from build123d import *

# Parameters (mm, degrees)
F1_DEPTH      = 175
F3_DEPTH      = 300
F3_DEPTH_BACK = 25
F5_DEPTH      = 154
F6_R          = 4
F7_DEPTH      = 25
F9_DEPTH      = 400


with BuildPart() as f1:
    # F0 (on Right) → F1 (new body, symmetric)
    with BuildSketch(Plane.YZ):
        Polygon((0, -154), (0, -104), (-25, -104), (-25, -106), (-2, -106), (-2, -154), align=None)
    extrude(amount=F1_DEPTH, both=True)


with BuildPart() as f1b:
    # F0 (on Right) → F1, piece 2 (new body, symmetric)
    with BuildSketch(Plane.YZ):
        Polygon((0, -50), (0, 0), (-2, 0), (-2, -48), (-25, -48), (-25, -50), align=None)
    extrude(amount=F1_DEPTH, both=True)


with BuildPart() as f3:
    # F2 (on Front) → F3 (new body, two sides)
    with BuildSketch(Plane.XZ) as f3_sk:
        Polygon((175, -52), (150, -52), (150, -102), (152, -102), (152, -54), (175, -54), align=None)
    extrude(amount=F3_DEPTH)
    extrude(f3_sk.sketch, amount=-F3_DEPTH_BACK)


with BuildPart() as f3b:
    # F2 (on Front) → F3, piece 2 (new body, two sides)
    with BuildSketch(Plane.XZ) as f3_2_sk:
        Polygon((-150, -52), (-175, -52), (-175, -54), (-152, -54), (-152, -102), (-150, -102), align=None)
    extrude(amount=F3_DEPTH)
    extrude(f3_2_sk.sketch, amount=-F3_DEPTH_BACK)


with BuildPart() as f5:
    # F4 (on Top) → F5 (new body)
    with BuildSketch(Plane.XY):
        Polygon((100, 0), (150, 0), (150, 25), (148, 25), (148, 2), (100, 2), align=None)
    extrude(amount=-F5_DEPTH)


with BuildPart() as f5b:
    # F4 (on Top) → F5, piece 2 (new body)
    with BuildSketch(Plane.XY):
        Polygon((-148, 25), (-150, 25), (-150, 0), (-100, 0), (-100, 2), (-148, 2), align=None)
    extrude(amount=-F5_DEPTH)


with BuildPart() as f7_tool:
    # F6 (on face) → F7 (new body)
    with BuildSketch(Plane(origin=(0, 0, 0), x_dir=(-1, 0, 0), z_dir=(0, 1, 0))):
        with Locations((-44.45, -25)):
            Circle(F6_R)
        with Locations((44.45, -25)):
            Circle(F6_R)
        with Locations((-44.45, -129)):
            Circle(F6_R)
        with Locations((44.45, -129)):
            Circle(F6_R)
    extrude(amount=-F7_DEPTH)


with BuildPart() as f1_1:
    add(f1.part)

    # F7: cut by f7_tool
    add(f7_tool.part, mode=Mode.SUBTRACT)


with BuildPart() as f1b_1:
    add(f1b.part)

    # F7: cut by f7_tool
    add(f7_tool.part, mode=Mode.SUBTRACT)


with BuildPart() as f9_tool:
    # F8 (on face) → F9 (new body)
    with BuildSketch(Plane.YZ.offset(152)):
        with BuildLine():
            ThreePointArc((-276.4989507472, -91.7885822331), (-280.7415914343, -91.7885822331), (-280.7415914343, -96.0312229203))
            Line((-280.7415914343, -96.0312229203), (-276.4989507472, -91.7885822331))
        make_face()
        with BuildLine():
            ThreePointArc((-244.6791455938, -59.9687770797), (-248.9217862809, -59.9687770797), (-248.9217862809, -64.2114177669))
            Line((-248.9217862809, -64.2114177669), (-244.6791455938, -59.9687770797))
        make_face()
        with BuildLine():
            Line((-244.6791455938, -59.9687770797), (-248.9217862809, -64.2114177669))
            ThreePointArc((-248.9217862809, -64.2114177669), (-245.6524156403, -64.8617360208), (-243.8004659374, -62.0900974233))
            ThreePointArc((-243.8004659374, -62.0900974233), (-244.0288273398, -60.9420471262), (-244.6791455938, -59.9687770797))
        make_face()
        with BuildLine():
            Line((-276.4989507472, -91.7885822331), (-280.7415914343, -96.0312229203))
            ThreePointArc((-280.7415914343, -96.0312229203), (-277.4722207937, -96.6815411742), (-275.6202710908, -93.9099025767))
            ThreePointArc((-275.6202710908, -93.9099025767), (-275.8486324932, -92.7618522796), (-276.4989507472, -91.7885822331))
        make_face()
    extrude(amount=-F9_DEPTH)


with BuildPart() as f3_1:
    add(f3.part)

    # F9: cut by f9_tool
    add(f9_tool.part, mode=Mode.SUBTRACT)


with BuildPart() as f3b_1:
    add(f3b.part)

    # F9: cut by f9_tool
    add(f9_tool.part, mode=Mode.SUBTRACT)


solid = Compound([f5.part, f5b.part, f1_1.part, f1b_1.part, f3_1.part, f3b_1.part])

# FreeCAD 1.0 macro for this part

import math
import FreeCAD as App
import Part
import Sketcher

doc = App.newDocument("Part")
body = doc.addObject("PartDesign::Body", "Body")

# Sketch on YZ plane
sketch1 = body.newObject("Sketcher::SketchObject", "Sketch")
sketch1.AttachmentSupport = (doc.getObject("YZ_Plane"), [""])
sketch1.MapMode = "FlatFace"
sketch1.addGeometry(Part.LineSegment(App.Vector(0, -154, 0), App.Vector(0, -104, 0)), False)
sketch1.addGeometry(Part.LineSegment(App.Vector(0, -104, 0), App.Vector(-25, -104, 0)), False)
sketch1.addGeometry(Part.LineSegment(App.Vector(-25, -104, 0), App.Vector(-25, -106, 0)), False)
sketch1.addGeometry(Part.LineSegment(App.Vector(-25, -106, 0), App.Vector(-2, -106, 0)), False)
sketch1.addGeometry(Part.LineSegment(App.Vector(-2, -106, 0), App.Vector(-2, -154, 0)), False)
sketch1.addGeometry(Part.LineSegment(App.Vector(-2, -154, 0), App.Vector(0, -154, 0)), False)
sketch1.addConstraint(Sketcher.Constraint("Coincident", 0, 2, 1, 1))
sketch1.addConstraint(Sketcher.Constraint("Coincident", 1, 2, 2, 1))
sketch1.addConstraint(Sketcher.Constraint("Coincident", 2, 2, 3, 1))
sketch1.addConstraint(Sketcher.Constraint("Coincident", 3, 2, 4, 1))
sketch1.addConstraint(Sketcher.Constraint("Coincident", 4, 2, 5, 1))
sketch1.addConstraint(Sketcher.Constraint("Coincident", 5, 2, 0, 1))
sketch1.addConstraint(Sketcher.Constraint("Vertical", 0))
sketch1.addConstraint(Sketcher.Constraint("Horizontal", 1))
sketch1.addConstraint(Sketcher.Constraint("Vertical", 2))
sketch1.addConstraint(Sketcher.Constraint("Horizontal", 3))
sketch1.addConstraint(Sketcher.Constraint("Vertical", 4))
sketch1.addConstraint(Sketcher.Constraint("Horizontal", 5))
sketch1.addConstraint(Sketcher.Constraint("PointOnObject", 0, 2, -2))
sketch1.addConstraint(Sketcher.Constraint("Equal", 5, 2))
sketch1.addConstraint(Sketcher.Constraint("DistanceX", 1, 2, 1, 1, 25.0))
sketch1.addConstraint(Sketcher.Constraint("DistanceX", 3, 1, 3, 2, 23.0))
sketch1.addConstraint(Sketcher.Constraint("DistanceY", 0, 1, 0, 2, 50.0))
sketch1.addConstraint(Sketcher.Constraint("DistanceY", 0, 2, -1, 1, 104.0))
pad1 = body.newObject("PartDesign::Pad", "Pad")
pad1.Profile = sketch1
pad1.Length = 350
pad1.Midplane = True
body2 = doc.addObject("PartDesign::Body", "Body001")

# Sketch on YZ plane
sketch2 = body2.newObject("Sketcher::SketchObject", "Sketch001")
sketch2.AttachmentSupport = (doc.getObject("YZ_Plane001"), [""])
sketch2.MapMode = "FlatFace"
sketch2.addGeometry(Part.LineSegment(App.Vector(0, -50, 0), App.Vector(0, 0, 0)), False)
sketch2.addGeometry(Part.LineSegment(App.Vector(0, 0, 0), App.Vector(-2, 0, 0)), False)
sketch2.addGeometry(Part.LineSegment(App.Vector(-2, 0, 0), App.Vector(-2, -48, 0)), False)
sketch2.addGeometry(Part.LineSegment(App.Vector(-2, -48, 0), App.Vector(-25, -48, 0)), False)
sketch2.addGeometry(Part.LineSegment(App.Vector(-25, -48, 0), App.Vector(-25, -50, 0)), False)
sketch2.addGeometry(Part.LineSegment(App.Vector(-25, -50, 0), App.Vector(0, -50, 0)), False)
sketch2.addConstraint(Sketcher.Constraint("Coincident", 0, 2, 1, 1))
sketch2.addConstraint(Sketcher.Constraint("Coincident", 1, 2, 2, 1))
sketch2.addConstraint(Sketcher.Constraint("Coincident", 2, 2, 3, 1))
sketch2.addConstraint(Sketcher.Constraint("Coincident", 3, 2, 4, 1))
sketch2.addConstraint(Sketcher.Constraint("Coincident", 4, 2, 5, 1))
sketch2.addConstraint(Sketcher.Constraint("Coincident", 5, 2, 0, 1))
sketch2.addConstraint(Sketcher.Constraint("Vertical", 0))
sketch2.addConstraint(Sketcher.Constraint("Horizontal", 1))
sketch2.addConstraint(Sketcher.Constraint("Vertical", 2))
sketch2.addConstraint(Sketcher.Constraint("Horizontal", 3))
sketch2.addConstraint(Sketcher.Constraint("Vertical", 4))
sketch2.addConstraint(Sketcher.Constraint("Horizontal", 5))
sketch2.addConstraint(Sketcher.Constraint("Coincident", 0, 2, -1, 1))
sketch2.addConstraint(Sketcher.Constraint("Equal", 1, 4))
sketch2.addConstraint(Sketcher.Constraint("DistanceX", 1, 2, 1, 1, 2.0))
sketch2.addConstraint(Sketcher.Constraint("DistanceX", 3, 2, 3, 1, 23.0))
sketch2.addConstraint(Sketcher.Constraint("DistanceY", 0, 1, 0, 2, 50.0))
pad2 = body2.newObject("PartDesign::Pad", "Pad001")
pad2.Profile = sketch2
pad2.Length = 350
pad2.Midplane = True
body3 = doc.addObject("PartDesign::Body", "Body002")

# Sketch on XZ plane
sketch3 = body3.newObject("Sketcher::SketchObject", "Sketch002")
sketch3.AttachmentSupport = (doc.getObject("XZ_Plane002"), [""])
sketch3.MapMode = "FlatFace"
sketch3.addGeometry(Part.LineSegment(App.Vector(175, -52, 0), App.Vector(150, -52, 0)), False)
sketch3.addGeometry(Part.LineSegment(App.Vector(150, -52, 0), App.Vector(150, -102, 0)), False)
sketch3.addGeometry(Part.LineSegment(App.Vector(150, -102, 0), App.Vector(152, -102, 0)), False)
sketch3.addGeometry(Part.LineSegment(App.Vector(152, -102, 0), App.Vector(152, -54, 0)), False)
sketch3.addGeometry(Part.LineSegment(App.Vector(152, -54, 0), App.Vector(175, -54, 0)), False)
sketch3.addGeometry(Part.LineSegment(App.Vector(175, -54, 0), App.Vector(175, -52, 0)), False)
sketch3.addConstraint(Sketcher.Constraint("Coincident", 0, 2, 1, 1))
sketch3.addConstraint(Sketcher.Constraint("Coincident", 1, 2, 2, 1))
sketch3.addConstraint(Sketcher.Constraint("Coincident", 2, 2, 3, 1))
sketch3.addConstraint(Sketcher.Constraint("Coincident", 3, 2, 4, 1))
sketch3.addConstraint(Sketcher.Constraint("Coincident", 4, 2, 5, 1))
sketch3.addConstraint(Sketcher.Constraint("Coincident", 5, 2, 0, 1))
sketch3.addConstraint(Sketcher.Constraint("Horizontal", 0))
sketch3.addConstraint(Sketcher.Constraint("Vertical", 1))
sketch3.addConstraint(Sketcher.Constraint("Horizontal", 2))
sketch3.addConstraint(Sketcher.Constraint("Vertical", 3))
sketch3.addConstraint(Sketcher.Constraint("Horizontal", 4))
sketch3.addConstraint(Sketcher.Constraint("Vertical", 5))
sketch3.addConstraint(Sketcher.Constraint("Equal", 2, 5))
sketch3.addConstraint(Sketcher.Constraint("DistanceX", 0, 2, 0, 1, 25.0))
sketch3.addConstraint(Sketcher.Constraint("DistanceX", 2, 1, 2, 2, 2.0))
sketch3.addConstraint(Sketcher.Constraint("DistanceY", 1, 2, 1, 1, 50.0))
sketch3.addConstraint(Sketcher.Constraint("DistanceX", -1, 1, 0, 2, 150.0))
sketch3.addConstraint(Sketcher.Constraint("DistanceY", 0, 2, -1, 1, 52.0))
pad3 = body3.newObject("PartDesign::Pad", "Pad002")
pad3.Profile = sketch3
pad3.Type = "TwoLengths"
pad3.Length = 300
pad3.Length2 = 25
body4 = doc.addObject("PartDesign::Body", "Body003")

# Sketch on XZ plane
sketch4 = body4.newObject("Sketcher::SketchObject", "Sketch003")
sketch4.AttachmentSupport = (doc.getObject("XZ_Plane003"), [""])
sketch4.MapMode = "FlatFace"
sketch4.addGeometry(Part.LineSegment(App.Vector(-150, -52, 0), App.Vector(-175, -52, 0)), False)
sketch4.addGeometry(Part.LineSegment(App.Vector(-175, -52, 0), App.Vector(-175, -54, 0)), False)
sketch4.addGeometry(Part.LineSegment(App.Vector(-175, -54, 0), App.Vector(-152, -54, 0)), False)
sketch4.addGeometry(Part.LineSegment(App.Vector(-152, -54, 0), App.Vector(-152, -102, 0)), False)
sketch4.addGeometry(Part.LineSegment(App.Vector(-152, -102, 0), App.Vector(-150, -102, 0)), False)
sketch4.addGeometry(Part.LineSegment(App.Vector(-150, -102, 0), App.Vector(-150, -52, 0)), False)
sketch4.addConstraint(Sketcher.Constraint("Coincident", 0, 2, 1, 1))
sketch4.addConstraint(Sketcher.Constraint("Coincident", 1, 2, 2, 1))
sketch4.addConstraint(Sketcher.Constraint("Coincident", 2, 2, 3, 1))
sketch4.addConstraint(Sketcher.Constraint("Coincident", 3, 2, 4, 1))
sketch4.addConstraint(Sketcher.Constraint("Coincident", 4, 2, 5, 1))
sketch4.addConstraint(Sketcher.Constraint("Coincident", 5, 2, 0, 1))
sketch4.addConstraint(Sketcher.Constraint("Horizontal", 0))
sketch4.addConstraint(Sketcher.Constraint("Vertical", 1))
sketch4.addConstraint(Sketcher.Constraint("Horizontal", 2))
sketch4.addConstraint(Sketcher.Constraint("Vertical", 3))
sketch4.addConstraint(Sketcher.Constraint("Horizontal", 4))
sketch4.addConstraint(Sketcher.Constraint("Vertical", 5))
sketch4.addConstraint(Sketcher.Constraint("Equal", 4, 1))
sketch4.addConstraint(Sketcher.Constraint("DistanceX", 0, 2, 0, 1, 25.0))
sketch4.addConstraint(Sketcher.Constraint("DistanceX", 2, 1, 2, 2, 23.0))
sketch4.addConstraint(Sketcher.Constraint("DistanceY", 3, 2, 3, 1, 48.0))
sketch4.addConstraint(Sketcher.Constraint("DistanceX", 0, 2, -1, 1, 175.0))
sketch4.addConstraint(Sketcher.Constraint("DistanceY", 0, 2, -1, 1, 52.0))
pad4 = body4.newObject("PartDesign::Pad", "Pad003")
pad4.Profile = sketch4
pad4.Type = "TwoLengths"
pad4.Length = 300
pad4.Length2 = 25
body5 = doc.addObject("PartDesign::Body", "Body004")

# Sketch on XY plane
sketch5 = body5.newObject("Sketcher::SketchObject", "Sketch004")
sketch5.AttachmentSupport = (doc.getObject("XY_Plane004"), [""])
sketch5.MapMode = "FlatFace"
sketch5.addGeometry(Part.LineSegment(App.Vector(100, 0, 0), App.Vector(150, 0, 0)), False)
sketch5.addGeometry(Part.LineSegment(App.Vector(150, 0, 0), App.Vector(150, 25, 0)), False)
sketch5.addGeometry(Part.LineSegment(App.Vector(150, 25, 0), App.Vector(148, 25, 0)), False)
sketch5.addGeometry(Part.LineSegment(App.Vector(148, 25, 0), App.Vector(148, 2, 0)), False)
sketch5.addGeometry(Part.LineSegment(App.Vector(148, 2, 0), App.Vector(100, 2, 0)), False)
sketch5.addGeometry(Part.LineSegment(App.Vector(100, 2, 0), App.Vector(100, 0, 0)), False)
sketch5.addConstraint(Sketcher.Constraint("Coincident", 0, 2, 1, 1))
sketch5.addConstraint(Sketcher.Constraint("Coincident", 1, 2, 2, 1))
sketch5.addConstraint(Sketcher.Constraint("Coincident", 2, 2, 3, 1))
sketch5.addConstraint(Sketcher.Constraint("Coincident", 3, 2, 4, 1))
sketch5.addConstraint(Sketcher.Constraint("Coincident", 4, 2, 5, 1))
sketch5.addConstraint(Sketcher.Constraint("Coincident", 5, 2, 0, 1))
sketch5.addConstraint(Sketcher.Constraint("Horizontal", 0))
sketch5.addConstraint(Sketcher.Constraint("Vertical", 1))
sketch5.addConstraint(Sketcher.Constraint("Horizontal", 2))
sketch5.addConstraint(Sketcher.Constraint("Vertical", 3))
sketch5.addConstraint(Sketcher.Constraint("Horizontal", 4))
sketch5.addConstraint(Sketcher.Constraint("Vertical", 5))
sketch5.addConstraint(Sketcher.Constraint("PointOnObject", 0, 2, -1))
sketch5.addConstraint(Sketcher.Constraint("Equal", 2, 5))
sketch5.addConstraint(Sketcher.Constraint("DistanceX", 0, 1, 0, 2, 50.0))
sketch5.addConstraint(Sketcher.Constraint("DistanceX", 2, 2, 2, 1, 2.0))
sketch5.addConstraint(Sketcher.Constraint("DistanceY", 1, 1, 1, 2, 25.0))
sketch5.addConstraint(Sketcher.Constraint("DistanceX", -1, 1, 0, 2, 150.0))
pad5 = body5.newObject("PartDesign::Pad", "Pad004")
pad5.Profile = sketch5
pad5.Length = 154
pad5.Reversed = True
body6 = doc.addObject("PartDesign::Body", "Body005")

# Sketch on XY plane
sketch6 = body6.newObject("Sketcher::SketchObject", "Sketch005")
sketch6.AttachmentSupport = (doc.getObject("XY_Plane005"), [""])
sketch6.MapMode = "FlatFace"
sketch6.addGeometry(Part.LineSegment(App.Vector(-148, 25, 0), App.Vector(-150, 25, 0)), False)
sketch6.addGeometry(Part.LineSegment(App.Vector(-150, 25, 0), App.Vector(-150, 0, 0)), False)
sketch6.addGeometry(Part.LineSegment(App.Vector(-150, 0, 0), App.Vector(-100, 0, 0)), False)
sketch6.addGeometry(Part.LineSegment(App.Vector(-100, 0, 0), App.Vector(-100, 2, 0)), False)
sketch6.addGeometry(Part.LineSegment(App.Vector(-100, 2, 0), App.Vector(-148, 2, 0)), False)
sketch6.addGeometry(Part.LineSegment(App.Vector(-148, 2, 0), App.Vector(-148, 25, 0)), False)
sketch6.addConstraint(Sketcher.Constraint("Coincident", 0, 2, 1, 1))
sketch6.addConstraint(Sketcher.Constraint("Coincident", 1, 2, 2, 1))
sketch6.addConstraint(Sketcher.Constraint("Coincident", 2, 2, 3, 1))
sketch6.addConstraint(Sketcher.Constraint("Coincident", 3, 2, 4, 1))
sketch6.addConstraint(Sketcher.Constraint("Coincident", 4, 2, 5, 1))
sketch6.addConstraint(Sketcher.Constraint("Coincident", 5, 2, 0, 1))
sketch6.addConstraint(Sketcher.Constraint("Horizontal", 0))
sketch6.addConstraint(Sketcher.Constraint("Vertical", 1))
sketch6.addConstraint(Sketcher.Constraint("Horizontal", 2))
sketch6.addConstraint(Sketcher.Constraint("Vertical", 3))
sketch6.addConstraint(Sketcher.Constraint("Horizontal", 4))
sketch6.addConstraint(Sketcher.Constraint("Vertical", 5))
sketch6.addConstraint(Sketcher.Constraint("PointOnObject", 1, 2, -1))
sketch6.addConstraint(Sketcher.Constraint("Equal", 0, 3))
sketch6.addConstraint(Sketcher.Constraint("DistanceX", 0, 2, 0, 1, 2.0))
sketch6.addConstraint(Sketcher.Constraint("DistanceX", 2, 1, 2, 2, 50.0))
sketch6.addConstraint(Sketcher.Constraint("DistanceY", 1, 2, 1, 1, 25.0))
sketch6.addConstraint(Sketcher.Constraint("DistanceX", 0, 2, -1, 1, 150.0))
pad6 = body6.newObject("PartDesign::Pad", "Pad005")
pad6.Profile = sketch6
pad6.Length = 154
pad6.Reversed = True
body7 = doc.addObject("PartDesign::Body", "Body006")
body7.AllowCompound = True

# Sketch on XZ plane
sketch7 = body7.newObject("Sketcher::SketchObject", "Sketch006")
sketch7.AttachmentSupport = (doc.getObject("XZ_Plane006"), [""])
sketch7.MapMode = "FlatFace"
sketch7.addGeometry(Part.Circle(App.Vector(44.45, -25, 0), App.Vector(0, 0, 1), 4), False)
sketch7.addGeometry(Part.Circle(App.Vector(-44.45, -25, 0), App.Vector(0, 0, 1), 4), False)
sketch7.addGeometry(Part.Circle(App.Vector(44.45, -129, 0), App.Vector(0, 0, 1), 4), False)
sketch7.addGeometry(Part.Circle(App.Vector(-44.45, -129, 0), App.Vector(0, 0, 1), 4), False)
sketch7.addConstraint(Sketcher.Constraint("Equal", 0, 1))
sketch7.addConstraint(Sketcher.Constraint("Equal", 1, 2))
sketch7.addConstraint(Sketcher.Constraint("Equal", 2, 3))
sketch7.addConstraint(Sketcher.Constraint("Symmetric", 0, 3, 1, 3, -2))
sketch7.addConstraint(Sketcher.Constraint("Symmetric", 2, 3, 3, 3, -2))
sketch7.addConstraint(Sketcher.Constraint("Vertical", 0, 3, 2, 3))
sketch7.addConstraint(Sketcher.Constraint("Diameter", 0, 8.0))
sketch7.addConstraint(Sketcher.Constraint("DistanceY", 0, 3, -1, 1, 25.0))
sketch7.addConstraint(Sketcher.Constraint("DistanceY", 2, 3, -1, 1, 129.0))
sketch7.addConstraint(Sketcher.Constraint("DistanceX", 1, 3, 0, 3, 88.9))
pad7 = body7.newObject("PartDesign::Pad", "Pad006")
pad7.Profile = sketch7
pad7.Length = 25
doc.recompute()

body8 = doc.addObject("PartDesign::Body", "Body007")
body8.BaseFeature = body7
boolean = body.newObject("PartDesign::Boolean", "Boolean")
boolean.Type = "Cut"
boolean.addObjects([body8])
doc.recompute()

boolean2 = body2.newObject("PartDesign::Boolean", "Boolean001")
boolean2.Type = "Cut"
boolean2.addObjects([body7])
body9 = doc.addObject("PartDesign::Body", "Body008")
body9.AllowCompound = True

# Sketch on YZ plane
sketch8 = body9.newObject("Sketcher::SketchObject", "Sketch007")
sketch8.AttachmentSupport = (doc.getObject("YZ_Plane008"), [""])
sketch8.MapMode = "FlatFace"
sketch8.AttachmentOffset = App.Placement(App.Vector(0, 0, 152), App.Rotation())
sketch8.addGeometry(Part.ArcOfCircle(Part.Circle(App.Vector(-278.620271, -93.909903, 0), App.Vector(0, 0, 1), 3), math.radians(45), math.radians(225)), False)
sketch8.addGeometry(Part.ArcOfCircle(Part.Circle(App.Vector(-278.620271, -93.909903, 0), App.Vector(0, 0, 1), 3), math.radians(-135), math.radians(0)), False)
sketch8.addGeometry(Part.ArcOfCircle(Part.Circle(App.Vector(-278.620271, -93.909903, 0), App.Vector(0, 0, 1), 3), math.radians(0), math.radians(45)), False)
sketch8.addGeometry(Part.ArcOfCircle(Part.Circle(App.Vector(-246.800466, -62.090097, 0), App.Vector(0, 0, 1), 3), math.radians(45), math.radians(225)), False)
sketch8.addGeometry(Part.ArcOfCircle(Part.Circle(App.Vector(-246.800466, -62.090097, 0), App.Vector(0, 0, 1), 3), math.radians(-135), math.radians(0)), False)
sketch8.addGeometry(Part.ArcOfCircle(Part.Circle(App.Vector(-246.800466, -62.090097, 0), App.Vector(0, 0, 1), 3), math.radians(0), math.radians(45)), False)
sketch8.addConstraint(Sketcher.Constraint("Tangent", 0, 2, 1, 1))
sketch8.addConstraint(Sketcher.Constraint("Tangent", 1, 2, 2, 1))
sketch8.addConstraint(Sketcher.Constraint("Tangent", 2, 2, 0, 1))
sketch8.addConstraint(Sketcher.Constraint("Tangent", 3, 2, 4, 1))
sketch8.addConstraint(Sketcher.Constraint("Tangent", 4, 2, 5, 1))
sketch8.addConstraint(Sketcher.Constraint("Tangent", 5, 2, 3, 1))
sketch8.addConstraint(Sketcher.Constraint("Equal", 2, 3))
sketch8.addConstraint(Sketcher.Constraint("Horizontal", 2, 3, 1, 2))
sketch8.addConstraint(Sketcher.Constraint("Horizontal", 5, 3, 4, 2))
sketch8.addConstraint(Sketcher.Constraint("Radius", 0, 3.0))
sketch8.addConstraint(Sketcher.Constraint("DistanceX", 0, 3, -1, 1, 278.620271))
sketch8.addConstraint(Sketcher.Constraint("DistanceX", 0, 2, -1, 1, 280.741591))
sketch8.addConstraint(Sketcher.Constraint("DistanceX", 2, 2, -1, 1, 276.498951))
sketch8.addConstraint(Sketcher.Constraint("DistanceX", 3, 2, 3, 3, 2.12132))
sketch8.addConstraint(Sketcher.Constraint("DistanceX", 5, 2, 4, 2, 0.87868))
sketch8.addConstraint(Sketcher.Constraint("DistanceY", 0, 3, -1, 1, 93.909903))
sketch8.addConstraint(Sketcher.Constraint("DistanceX", 3, 3, -1, 1, 246.800466))
sketch8.addConstraint(Sketcher.Constraint("DistanceY", 3, 3, -1, 1, 62.090097))
pad8 = body9.newObject("PartDesign::Pad", "Pad007")
pad8.Profile = sketch8
pad8.Length = 400
pad8.Reversed = True
doc.recompute()

body10 = doc.addObject("PartDesign::Body", "Body009")
body10.BaseFeature = body9
boolean3 = body3.newObject("PartDesign::Boolean", "Boolean002")
boolean3.Type = "Cut"
boolean3.addObjects([body10])
doc.recompute()

boolean4 = body4.newObject("PartDesign::Boolean", "Boolean003")
boolean4.Type = "Cut"
boolean4.addObjects([body9])

doc.recompute()
